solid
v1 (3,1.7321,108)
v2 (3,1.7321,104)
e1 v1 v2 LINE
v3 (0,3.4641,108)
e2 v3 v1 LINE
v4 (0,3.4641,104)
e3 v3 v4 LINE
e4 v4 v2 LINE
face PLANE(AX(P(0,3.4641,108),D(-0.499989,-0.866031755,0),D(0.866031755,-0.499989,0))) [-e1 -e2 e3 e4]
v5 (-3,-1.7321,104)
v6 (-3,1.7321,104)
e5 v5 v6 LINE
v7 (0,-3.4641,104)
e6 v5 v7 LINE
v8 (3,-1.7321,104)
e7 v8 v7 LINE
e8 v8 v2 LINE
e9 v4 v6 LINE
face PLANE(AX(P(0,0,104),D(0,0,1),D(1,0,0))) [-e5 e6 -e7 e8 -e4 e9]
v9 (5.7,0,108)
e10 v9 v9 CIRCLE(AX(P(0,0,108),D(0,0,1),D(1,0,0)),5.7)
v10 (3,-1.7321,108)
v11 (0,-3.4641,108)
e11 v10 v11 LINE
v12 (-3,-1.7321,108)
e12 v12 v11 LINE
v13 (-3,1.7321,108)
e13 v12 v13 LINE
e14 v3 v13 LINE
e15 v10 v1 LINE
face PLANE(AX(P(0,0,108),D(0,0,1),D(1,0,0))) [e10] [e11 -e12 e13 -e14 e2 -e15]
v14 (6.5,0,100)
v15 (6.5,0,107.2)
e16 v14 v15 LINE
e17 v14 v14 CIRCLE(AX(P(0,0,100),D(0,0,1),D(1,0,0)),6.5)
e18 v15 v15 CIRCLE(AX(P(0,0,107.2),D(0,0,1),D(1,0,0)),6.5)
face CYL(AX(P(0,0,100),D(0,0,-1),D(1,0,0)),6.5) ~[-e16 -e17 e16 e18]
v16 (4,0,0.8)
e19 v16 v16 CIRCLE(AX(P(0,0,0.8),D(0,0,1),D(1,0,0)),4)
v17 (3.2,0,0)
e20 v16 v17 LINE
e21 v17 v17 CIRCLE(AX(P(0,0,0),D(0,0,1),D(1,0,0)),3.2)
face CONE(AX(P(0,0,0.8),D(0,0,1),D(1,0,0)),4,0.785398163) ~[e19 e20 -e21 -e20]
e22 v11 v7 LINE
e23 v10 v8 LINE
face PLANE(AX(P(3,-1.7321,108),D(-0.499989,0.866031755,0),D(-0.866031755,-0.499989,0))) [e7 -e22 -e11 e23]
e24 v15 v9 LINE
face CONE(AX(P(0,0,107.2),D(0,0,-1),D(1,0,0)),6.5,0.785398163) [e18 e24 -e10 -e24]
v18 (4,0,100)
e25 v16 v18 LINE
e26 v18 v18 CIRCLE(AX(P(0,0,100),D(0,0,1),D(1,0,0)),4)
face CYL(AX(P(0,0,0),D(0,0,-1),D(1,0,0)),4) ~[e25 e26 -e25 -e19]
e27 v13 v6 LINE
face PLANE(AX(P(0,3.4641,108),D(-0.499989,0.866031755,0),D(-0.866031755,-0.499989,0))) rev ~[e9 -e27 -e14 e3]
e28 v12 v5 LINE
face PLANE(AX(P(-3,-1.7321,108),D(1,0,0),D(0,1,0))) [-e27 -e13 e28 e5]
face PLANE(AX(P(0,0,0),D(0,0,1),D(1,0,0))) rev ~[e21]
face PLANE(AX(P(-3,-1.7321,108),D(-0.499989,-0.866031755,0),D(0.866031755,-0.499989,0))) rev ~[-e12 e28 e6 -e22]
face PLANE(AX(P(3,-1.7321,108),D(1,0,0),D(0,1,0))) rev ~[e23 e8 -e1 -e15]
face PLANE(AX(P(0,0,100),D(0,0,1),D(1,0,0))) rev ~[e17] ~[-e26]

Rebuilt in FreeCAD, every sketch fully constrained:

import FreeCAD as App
import Part
import Sketcher
Q = App.Units.Quantity


def edges_at(feature, points):
    """Names of the edges that pass closest to the given points."""
    edges = feature.Shape.Edges
    near = lambda p: min(range(len(edges)), key=lambda i: edges[i].distToShape(Part.Vertex(*p))[0])
    return sorted({f"Edge{near(p) + 1}" for p in points})


def add_polygon(sketch, points):
    """Adds a closed chain of lines whose ends are joined by coincident constraints."""
    first, n = sketch.GeometryCount, len(points)
    for a, b in zip(points, points[1:] + points[:1]):
        sketch.addGeometry(Part.LineSegment(App.Vector(*a, 0), App.Vector(*b, 0)), False)
    for i in range(n):
        sketch.addConstraint(Sketcher.Constraint("Coincident", first + i, 2, first + (i + 1) % n, 1))

doc = App.newDocument("Part")
body = doc.addObject("PartDesign::Body", "Body")

# Sketch on XY plane
sketch1 = doc.addObject("Sketcher::SketchObject", "Sketch")
body.addObject(sketch1)
sketch1.AttachmentSupport = (doc.XY_Plane, [""])
sketch1.MapMode = "FlatFace"
sketch1.addGeometry(Part.Circle(App.Vector(0, 0, 0), App.Vector(0, 0, 1), 4), False)
sketch1.addConstraint([
    Sketcher.Constraint("Coincident", 0, 3, -1, 1),
    Sketcher.Constraint("Diameter", 0, Q("8 mm")),
])
pad1 = doc.addObject("PartDesign::Pad", "Pad")
body.addObject(pad1)
pad1.Profile = sketch1
pad1.Length = 100

# Sketch on XY plane
sketch2 = doc.addObject("Sketcher::SketchObject", "Sketch001")
body.addObject(sketch2)
sketch2.AttachmentSupport = (doc.XY_Plane, [""])
sketch2.MapMode = "FlatFace"
sketch2.AttachmentOffset = App.Placement(App.Vector(0, 0, 100), App.Rotation())
sketch2.addGeometry(Part.Circle(App.Vector(0, 0, 0), App.Vector(0, 0, 1), 6), False)
sketch2.addConstraint([
    Sketcher.Constraint("Coincident", 0, 3, -1, 1),
    Sketcher.Constraint("Diameter", 0, Q("13 mm")),
])
pad2 = doc.addObject("PartDesign::Pad", "Pad001")
body.addObject(pad2)
pad2.Profile = sketch2
pad2.Length = 8

# Sketch on XY plane
sketch3 = doc.addObject("Sketcher::SketchObject", "Sketch002")
body.addObject(sketch3)
sketch3.AttachmentSupport = (doc.XY_Plane, [""])
sketch3.MapMode = "FlatFace"
sketch3.AttachmentOffset = App.Placement(App.Vector(0, 0, 108), App.Rotation())
add_polygon(sketch3, [(3, 1.7), (0, 3.5), (-3, 1.7), (-3, -1.7), (0, -3.5), (3, -1.7)])  # lines 0-5
sketch3.addConstraint([
    Sketcher.Constraint("Vertical", 2),
    Sketcher.Constraint("Vertical", 5),
    Sketcher.Constraint("Symmetric", 0, 2, 3, 2, -1, 1),
    Sketcher.Constraint("Symmetric", 1, 2, 4, 2, -1, 1),
    Sketcher.Constraint("PointOnObject", 0, 2, -2),
    Sketcher.Constraint("Parallel", 0, 3),
    Sketcher.Constraint("Horizontal", 2, 2, 4, 2),
    Sketcher.Constraint("DistanceX", 2, 2, 4, 2, Q("6 mm")),
    Sketcher.Constraint("Angle", 0, Q("150.0007 deg")),
    Sketcher.Constraint("DistanceY", 2, 2, 2, 1, Q("3.4642 mm")),
])
pocket1 = doc.addObject("PartDesign::Pocket", "Pocket")
body.addObject(pocket1)
pocket1.Profile = sketch3
pocket1.Length = 4
doc.recompute()

chamfer = doc.addObject("PartDesign::Chamfer", "Chamfer")
body.addObject(chamfer)
chamfer.Base = (pocket1, edges_at(pocket1, [(-6.5, 0, 108), (-4, 0, 0)]))
chamfer.Size = 0.8

doc.recompute()
